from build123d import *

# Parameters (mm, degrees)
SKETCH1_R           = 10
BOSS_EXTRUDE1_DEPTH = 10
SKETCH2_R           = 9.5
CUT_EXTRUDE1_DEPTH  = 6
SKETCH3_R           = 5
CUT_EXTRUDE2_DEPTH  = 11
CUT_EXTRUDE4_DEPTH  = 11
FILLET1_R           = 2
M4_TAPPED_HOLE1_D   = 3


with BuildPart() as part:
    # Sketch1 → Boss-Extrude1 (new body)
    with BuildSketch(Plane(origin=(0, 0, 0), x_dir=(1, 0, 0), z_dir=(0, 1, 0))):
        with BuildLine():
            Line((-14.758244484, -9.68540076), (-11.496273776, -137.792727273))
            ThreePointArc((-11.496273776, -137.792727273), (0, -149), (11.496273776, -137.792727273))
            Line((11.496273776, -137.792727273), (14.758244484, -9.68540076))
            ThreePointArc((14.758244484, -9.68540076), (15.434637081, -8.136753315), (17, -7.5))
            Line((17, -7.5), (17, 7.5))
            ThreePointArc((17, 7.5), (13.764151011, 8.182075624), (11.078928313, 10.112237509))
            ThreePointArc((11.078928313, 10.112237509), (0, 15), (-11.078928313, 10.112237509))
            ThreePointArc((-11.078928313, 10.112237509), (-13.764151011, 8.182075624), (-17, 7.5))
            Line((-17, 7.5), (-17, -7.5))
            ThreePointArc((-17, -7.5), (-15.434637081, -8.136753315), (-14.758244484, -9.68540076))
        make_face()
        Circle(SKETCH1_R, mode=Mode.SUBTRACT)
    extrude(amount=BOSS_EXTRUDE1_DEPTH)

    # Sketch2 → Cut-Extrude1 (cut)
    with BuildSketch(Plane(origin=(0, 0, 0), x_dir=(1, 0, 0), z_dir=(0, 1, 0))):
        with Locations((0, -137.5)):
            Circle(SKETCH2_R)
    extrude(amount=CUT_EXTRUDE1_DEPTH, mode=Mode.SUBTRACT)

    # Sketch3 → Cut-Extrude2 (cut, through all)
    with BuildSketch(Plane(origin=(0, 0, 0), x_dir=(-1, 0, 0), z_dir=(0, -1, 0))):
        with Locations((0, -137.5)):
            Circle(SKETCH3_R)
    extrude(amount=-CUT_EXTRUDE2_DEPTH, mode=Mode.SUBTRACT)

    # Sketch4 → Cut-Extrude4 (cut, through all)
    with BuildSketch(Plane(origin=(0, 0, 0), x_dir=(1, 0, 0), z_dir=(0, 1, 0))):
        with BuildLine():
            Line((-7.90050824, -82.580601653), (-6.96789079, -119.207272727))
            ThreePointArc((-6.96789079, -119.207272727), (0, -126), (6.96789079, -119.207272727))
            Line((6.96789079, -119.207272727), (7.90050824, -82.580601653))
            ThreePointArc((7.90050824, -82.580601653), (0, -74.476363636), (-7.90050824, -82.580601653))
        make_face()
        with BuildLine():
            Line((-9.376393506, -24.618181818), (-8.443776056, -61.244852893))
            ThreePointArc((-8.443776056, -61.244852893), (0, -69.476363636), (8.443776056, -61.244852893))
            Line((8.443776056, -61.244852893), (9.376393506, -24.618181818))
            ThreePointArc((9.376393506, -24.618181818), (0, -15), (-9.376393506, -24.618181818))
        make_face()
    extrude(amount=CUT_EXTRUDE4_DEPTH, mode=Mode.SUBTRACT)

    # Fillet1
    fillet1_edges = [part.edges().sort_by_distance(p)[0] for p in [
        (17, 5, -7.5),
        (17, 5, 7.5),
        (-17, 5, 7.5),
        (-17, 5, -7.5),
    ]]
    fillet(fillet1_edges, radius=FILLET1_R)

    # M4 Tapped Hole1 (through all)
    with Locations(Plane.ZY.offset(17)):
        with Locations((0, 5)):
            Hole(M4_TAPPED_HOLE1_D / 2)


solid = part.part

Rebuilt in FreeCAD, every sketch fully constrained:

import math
import FreeCAD as App
import Part
import Sketcher
Q = App.Units.Quantity


def edges_at(feature, points):
    """Names of the edges that pass closest to the given points."""
    edges = feature.Shape.Edges
    near = lambda p: min(range(len(edges)), key=lambda i: edges[i].distToShape(Part.Vertex(*p))[0])
    return sorted({f"Edge{near(p) + 1}" for p in points})

doc = App.newDocument("Part")
body = doc.addObject("PartDesign::Body", "Body")

sketch1 = doc.addObject("Sketcher::SketchObject", "Sketch")
body.addObject(sketch1)
sketch1.AttachmentSupport = (doc.XZ_Plane, [""])
sketch1.MapMode = "FlatFace"
sketch1.addGeometry(Part.LineSegment(App.Vector(-14.8, 9.7, 0), App.Vector(-11.5, 137.8, 0)), False)
sketch1.addGeometry(Part.ArcOfCircle(Part.Circle(App.Vector(0, 137.5, 0), App.Vector(0, 0, 1), 11.5), math.radians(1), math.radians(179)), False)
sketch1.addGeometry(Part.LineSegment(App.Vector(11.5, 137.8, 0), App.Vector(14.8, 9.7, 0)), False)
sketch1.addGeometry(Part.ArcOfCircle(Part.Circle(App.Vector(17, 9.7, 0), App.Vector(0, 0, 1), 2.2), math.radians(-179), math.radians(-90)), False)
sketch1.addGeometry(Part.LineSegment(App.Vector(17, 7.5, 0), App.Vector(17, -7.5, 0)), False)
sketch1.addGeometry(Part.ArcOfCircle(Part.Circle(App.Vector(17, -15.5, 0), App.Vector(0, 0, 1), 8), math.radians(90), math.radians(138)), False)
sketch1.addGeometry(Part.ArcOfCircle(Part.Circle(App.Vector(0, 0, 0), App.Vector(0, 0, 1), 15), math.radians(-138), math.radians(-42)), False)
sketch1.addGeometry(Part.ArcOfCircle(Part.Circle(App.Vector(-17, -15.5, 0), App.Vector(0, 0, 1), 8), math.radians(42), math.radians(90)), False)
sketch1.addGeometry(Part.LineSegment(App.Vector(-17, -7.5, 0), App.Vector(-17, 7.5, 0)), False)
sketch1.addGeometry(Part.ArcOfCircle(Part.Circle(App.Vector(-17, 9.7, 0), App.Vector(0, 0, 1), 2.2), math.radians(-90), math.radians(-1)), False)
sketch1.addGeometry(Part.Circle(App.Vector(0, 0, 0), App.Vector(0, 0, 1), 10), False)
sketch1.addConstraint(Sketcher.Constraint("Tangent", 0, 2, 1, 2))
sketch1.addConstraint(Sketcher.Constraint("Tangent", 1, 1, 2, 1))
sketch1.addConstraint(Sketcher.Constraint("Tangent", 2, 2, 3, 1))
sketch1.addConstraint(Sketcher.Constraint("Coincident", 3, 2, 4, 1))
sketch1.addConstraint(Sketcher.Constraint("Coincident", 4, 2, 5, 1))
sketch1.addConstraint(Sketcher.Constraint("Tangent", 5, 2, 6, 2))
sketch1.addConstraint(Sketcher.Constraint("Tangent", 6, 1, 7, 1))
sketch1.addConstraint(Sketcher.Constraint("Coincident", 7, 2, 8, 1))
sketch1.addConstraint(Sketcher.Constraint("Coincident", 8, 2, 9, 1))
sketch1.addConstraint(Sketcher.Constraint("Tangent", 9, 2, 0, 1))
sketch1.addConstraint(Sketcher.Constraint("Vertical", 4))
sketch1.addConstraint(Sketcher.Constraint("Vertical", 8))
sketch1.addConstraint(Sketcher.Constraint("Coincident", 6, 3, -1, 1))
sketch1.addConstraint(Sketcher.Constraint("Coincident", 10, 3, -1, 1))
sketch1.addConstraint(Sketcher.Constraint("Equal", 5, 7))
sketch1.addConstraint(Sketcher.Constraint("Equal", 3, 9))
sketch1.addConstraint(Sketcher.Constraint("Symmetric", 3, 2, 7, 2, -1, 1))
sketch1.addConstraint(Sketcher.Constraint("Symmetric", 3, 3, 9, 3, -2))
sketch1.addConstraint(Sketcher.Constraint("PointOnObject", 1, 3, -2))
sketch1.addConstraint(Sketcher.Constraint("Horizontal", 5, 3, 7, 3))
sketch1.addConstraint(Sketcher.Constraint("Vertical", 3, 3, 5, 3))
sketch1.addConstraint(Sketcher.Constraint("Vertical", 5, 3, 3, 2))
sketch1.addConstraint(Sketcher.Constraint("Diameter", 10, Q("20 mm")))
sketch1.addConstraint(Sketcher.Constraint("Radius", 6, Q("15 mm")))
sketch1.addConstraint(Sketcher.Constraint("Radius", 1, Q("11.5 mm")))
sketch1.addConstraint(Sketcher.Constraint("DistanceY", 4, 2, 4, 1, Q("15 mm")))
sketch1.addConstraint(Sketcher.Constraint("DistanceX", -1, 1, 3, 3, Q("17 mm")))
sketch1.addConstraint(Sketcher.Constraint("DistanceY", -1, 1, 1, 3, Q("137.5 mm")))
sketch1.addConstraint(Sketcher.Constraint("Radius", 3, Q("2.242482 mm")))
pad1 = doc.addObject("PartDesign::Pad", "Pad")
body.addObject(pad1)
pad1.Profile = sketch1
pad1.Length = 10
pad1.Reversed = True

sketch2 = doc.addObject("Sketcher::SketchObject", "Sketch001")
body.addObject(sketch2)
sketch2.AttachmentSupport = (doc.XZ_Plane, [""])
sketch2.MapMode = "FlatFace"
sketch2.addGeometry(Part.Circle(App.Vector(0, 138, 0), App.Vector(0, 0, 1), 10), False)
sketch2.addConstraint(Sketcher.Constraint("PointOnObject", 0, 3, -2))
sketch2.addConstraint(Sketcher.Constraint("Diameter", 0, Q("19 mm")))
sketch2.addConstraint(Sketcher.Constraint("DistanceY", -1, 1, 0, 3, Q("137.5 mm")))
pocket1 = doc.addObject("PartDesign::Pocket", "Pocket")
body.addObject(pocket1)
pocket1.Profile = sketch2
pocket1.Length = 6

sketch3 = doc.addObject("Sketcher::SketchObject", "Sketch002")
body.addObject(sketch3)
sketch3.AttachmentSupport = (doc.XZ_Plane, [""])
sketch3.MapMode = "FlatFace"
sketch3.addGeometry(Part.Circle(App.Vector(0, 138, 0), App.Vector(0, 0, 1), 5), False)
sketch3.addConstraint(Sketcher.Constraint("PointOnObject", 0, 3, -2))
sketch3.addConstraint(Sketcher.Constraint("Diameter", 0, Q("10 mm")))
sketch3.addConstraint(Sketcher.Constraint("DistanceY", -1, 1, 0, 3, Q("137.5 mm")))
pocket2 = doc.addObject("PartDesign::Pocket", "Pocket001")
body.addObject(pocket2)
pocket2.Profile = sketch3
pocket2.Type = "ThroughAll"

sketch4 = doc.addObject("Sketcher::SketchObject", "Sketch003")
body.addObject(sketch4)
sketch4.AttachmentSupport = (doc.XZ_Plane, [""])
sketch4.MapMode = "FlatFace"
sketch4.addGeometry(Part.LineSegment(App.Vector(-8, 83, 0), App.Vector(-7, 119, 0)), False)
sketch4.addGeometry(Part.ArcOfCircle(Part.Circle(App.Vector(0, 119, 0), App.Vector(0, 0, 1), 7), math.radians(1), math.radians(179)), False)
sketch4.addGeometry(Part.LineSegment(App.Vector(7, 119, 0), App.Vector(8, 83, 0)), False)
sketch4.addGeometry(Part.ArcOfCircle(Part.Circle(App.Vector(0, 82, 0), App.Vector(0, 0, 1), 8), math.radians(179), math.radians(361)), False)
sketch4.addGeometry(Part.LineSegment(App.Vector(-9, 25, 0), App.Vector(-8, 61, 0)), False)
sketch4.addGeometry(Part.ArcOfCircle(Part.Circle(App.Vector(0, 61, 0), App.Vector(0, 0, 1), 8), math.radians(1), math.radians(179)), False)
sketch4.addGeometry(Part.LineSegment(App.Vector(8, 61, 0), App.Vector(9, 25, 0)), False)
sketch4.addGeometry(Part.ArcOfCircle(Part.Circle(App.Vector(0, 24, 0), App.Vector(0, 0, 1), 9), math.radians(179), math.radians(361)), False)
sketch4.addConstraint(Sketcher.Constraint("Tangent", 0, 2, 1, 2))
sketch4.addConstraint(Sketcher.Constraint("Tangent", 1, 1, 2, 1))
sketch4.addConstraint(Sketcher.Constraint("Tangent", 2, 2, 3, 2))
sketch4.addConstraint(Sketcher.Constraint("Tangent", 3, 1, 0, 1))
sketch4.addConstraint(Sketcher.Constraint("Tangent", 4, 2, 5, 2))
sketch4.addConstraint(Sketcher.Constraint("Tangent", 5, 1, 6, 1))
sketch4.addConstraint(Sketcher.Constraint("Tangent", 6, 2, 7, 2))
sketch4.addConstraint(Sketcher.Constraint("Tangent", 7, 1, 4, 1))
sketch4.addConstraint(Sketcher.Constraint("Symmetric", 0, 2, 1, 1, -2))
sketch4.addConstraint(Sketcher.Constraint("Symmetric", 4, 2, 5, 1, -2))
sketch4.addConstraint(Sketcher.Constraint("Parallel", 0, 4))
sketch4.addConstraint(Sketcher.Constraint("Equal", 2, 4))
sketch4.addConstraint(Sketcher.Constraint("DistanceY", 5, 3, 1, 3, Q("58 mm")))
sketch4.addConstraint(Sketcher.Constraint("Radius", 1, Q("6.970149 mm")))
sketch4.addConstraint(Sketcher.Constraint("Radius", 3, Q("7.903069 mm")))
sketch4.addConstraint(Sketcher.Constraint("Radius", 5, Q("8.446513 mm")))
sketch4.addConstraint(Sketcher.Constraint("DistanceY", -1, 1, 2, 2, Q("82.580602 mm")))
sketch4.addConstraint(Sketcher.Constraint("DistanceY", -1, 1, 1, 3, Q("119.029851 mm")))
pocket3 = doc.addObject("PartDesign::Pocket", "Pocket002")
body.addObject(pocket3)
pocket3.Profile = sketch4
pocket3.Type = "ThroughAll"
doc.recompute()

fillet = doc.addObject("PartDesign::Fillet", "Fillet")
body.addObject(fillet)
fillet.Base = (pocket3, edges_at(pocket3, [
    (17, 5, -7.5),
    (17, 5, 7.5),
    (-17, 5, 7.5),
    (-17, 5, -7.5),
]))
fillet.Radius = 2

sketch5 = doc.addObject("Sketcher::SketchObject", "Sketch004")
body.addObject(sketch5)
sketch5.AttachmentSupport = (doc.YZ_Plane, [""])
sketch5.MapMode = "FlatFace"
sketch5.AttachmentOffset = App.Placement(App.Vector(0, 0, -17), App.Rotation())
sketch5.addGeometry(Part.Circle(App.Vector(5, 0, 0), App.Vector(0, 0, 1), 1.5), False)
sketch5.addConstraint(Sketcher.Constraint("PointOnObject", 0, 3, -1))
sketch5.addConstraint(Sketcher.Constraint("Diameter", 0, Q("3 mm")))
sketch5.addConstraint(Sketcher.Constraint("DistanceX", -1, 1, 0, 3, Q("5 mm")))
doc.recompute()
hole = doc.addObject("PartDesign::Hole", "Hole")
body.addObject(hole)
hole.Profile = sketch5
hole.ThreadType = "None"
hole.Diameter = 3
hole.DepthType = "ThroughAll"
hole.Reversed = True

doc.recompute()
